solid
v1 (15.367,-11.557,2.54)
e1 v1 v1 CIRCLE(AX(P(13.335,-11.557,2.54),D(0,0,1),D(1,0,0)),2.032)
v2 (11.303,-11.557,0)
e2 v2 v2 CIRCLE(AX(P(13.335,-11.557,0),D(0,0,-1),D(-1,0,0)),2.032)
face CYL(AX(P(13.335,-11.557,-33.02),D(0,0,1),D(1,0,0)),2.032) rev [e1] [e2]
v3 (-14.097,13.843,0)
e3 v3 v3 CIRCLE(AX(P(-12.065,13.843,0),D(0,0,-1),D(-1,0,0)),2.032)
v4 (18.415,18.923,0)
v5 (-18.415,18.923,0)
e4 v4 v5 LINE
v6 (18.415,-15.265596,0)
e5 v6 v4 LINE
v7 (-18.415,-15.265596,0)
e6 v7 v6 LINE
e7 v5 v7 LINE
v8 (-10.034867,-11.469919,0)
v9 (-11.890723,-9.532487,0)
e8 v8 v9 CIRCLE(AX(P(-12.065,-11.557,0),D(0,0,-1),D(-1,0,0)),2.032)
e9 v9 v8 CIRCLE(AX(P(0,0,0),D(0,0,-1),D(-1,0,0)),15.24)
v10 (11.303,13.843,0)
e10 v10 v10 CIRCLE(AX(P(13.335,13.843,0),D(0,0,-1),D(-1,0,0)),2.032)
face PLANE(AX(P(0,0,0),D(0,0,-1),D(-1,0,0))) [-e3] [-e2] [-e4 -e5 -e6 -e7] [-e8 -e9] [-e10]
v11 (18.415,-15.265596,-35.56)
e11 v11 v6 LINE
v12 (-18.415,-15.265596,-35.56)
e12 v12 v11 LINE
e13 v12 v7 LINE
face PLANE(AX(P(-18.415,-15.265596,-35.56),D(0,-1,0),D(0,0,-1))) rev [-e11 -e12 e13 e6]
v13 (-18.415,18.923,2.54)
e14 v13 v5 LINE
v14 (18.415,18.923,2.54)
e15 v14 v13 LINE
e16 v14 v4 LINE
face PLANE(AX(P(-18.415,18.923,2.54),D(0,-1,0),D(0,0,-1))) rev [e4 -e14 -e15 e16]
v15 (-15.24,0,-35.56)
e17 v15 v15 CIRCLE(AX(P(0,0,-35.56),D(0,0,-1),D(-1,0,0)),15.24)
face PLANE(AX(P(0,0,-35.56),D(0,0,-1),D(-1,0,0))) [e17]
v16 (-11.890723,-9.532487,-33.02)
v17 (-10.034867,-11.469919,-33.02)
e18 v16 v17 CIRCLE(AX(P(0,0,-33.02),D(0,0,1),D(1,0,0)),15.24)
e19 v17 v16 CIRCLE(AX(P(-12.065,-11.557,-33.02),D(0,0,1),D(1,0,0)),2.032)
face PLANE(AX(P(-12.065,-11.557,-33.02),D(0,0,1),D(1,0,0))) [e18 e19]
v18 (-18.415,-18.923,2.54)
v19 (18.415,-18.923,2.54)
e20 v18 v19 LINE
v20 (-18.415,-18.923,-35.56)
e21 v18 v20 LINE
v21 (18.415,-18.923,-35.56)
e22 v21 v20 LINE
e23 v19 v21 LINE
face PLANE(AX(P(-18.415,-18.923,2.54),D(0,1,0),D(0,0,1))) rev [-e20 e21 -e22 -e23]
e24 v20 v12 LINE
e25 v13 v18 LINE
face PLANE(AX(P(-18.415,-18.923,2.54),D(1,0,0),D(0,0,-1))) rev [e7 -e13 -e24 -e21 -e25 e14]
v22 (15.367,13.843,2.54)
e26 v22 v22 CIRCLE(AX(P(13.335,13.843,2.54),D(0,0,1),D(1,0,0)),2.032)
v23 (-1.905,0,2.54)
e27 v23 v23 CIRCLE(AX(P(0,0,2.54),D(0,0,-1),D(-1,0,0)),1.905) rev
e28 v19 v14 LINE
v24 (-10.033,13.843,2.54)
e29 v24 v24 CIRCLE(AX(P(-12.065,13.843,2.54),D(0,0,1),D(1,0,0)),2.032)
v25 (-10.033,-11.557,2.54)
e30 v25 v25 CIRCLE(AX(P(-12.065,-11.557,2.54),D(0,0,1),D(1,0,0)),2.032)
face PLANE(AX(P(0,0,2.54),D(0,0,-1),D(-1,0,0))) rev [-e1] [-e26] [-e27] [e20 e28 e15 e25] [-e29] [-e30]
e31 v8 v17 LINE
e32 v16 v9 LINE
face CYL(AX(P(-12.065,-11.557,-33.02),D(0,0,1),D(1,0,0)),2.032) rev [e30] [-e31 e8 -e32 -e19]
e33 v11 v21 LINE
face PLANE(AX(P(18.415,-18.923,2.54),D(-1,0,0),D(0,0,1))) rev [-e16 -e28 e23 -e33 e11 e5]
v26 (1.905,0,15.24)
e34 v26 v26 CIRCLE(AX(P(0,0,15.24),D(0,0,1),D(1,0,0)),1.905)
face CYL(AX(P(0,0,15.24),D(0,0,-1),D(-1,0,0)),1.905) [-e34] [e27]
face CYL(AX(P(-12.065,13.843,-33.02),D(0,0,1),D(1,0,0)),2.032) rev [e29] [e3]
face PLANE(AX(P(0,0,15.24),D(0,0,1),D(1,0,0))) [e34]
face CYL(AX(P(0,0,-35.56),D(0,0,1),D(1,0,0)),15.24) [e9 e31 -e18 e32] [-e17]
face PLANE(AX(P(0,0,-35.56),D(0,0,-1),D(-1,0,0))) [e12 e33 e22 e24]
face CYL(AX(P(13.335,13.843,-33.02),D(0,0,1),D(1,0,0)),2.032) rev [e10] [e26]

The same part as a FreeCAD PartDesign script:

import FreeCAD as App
import Part
import Sketcher
Q = App.Units.Quantity

doc = App.newDocument("Part")
body = doc.addObject("PartDesign::Body", "Body")

# Sketch on XY plane
sketch1 = doc.addObject("Sketcher::SketchObject", "Sketch")
body.addObject(sketch1)
sketch1.AttachmentSupport = (doc.XY_Plane, [""])
sketch1.MapMode = "FlatFace"
sketch1.addGeometry([
    Part.LineSegment(App.Vector(-18, 19, 0), App.Vector(-18, -19, 0)),
    Part.LineSegment(App.Vector(-18, -19, 0), App.Vector(18, -19, 0)),
    Part.LineSegment(App.Vector(18, -19, 0), App.Vector(18, 19, 0)),
    Part.LineSegment(App.Vector(18, 19, 0), App.Vector(-18, 19, 0)),
], False)
sketch1.addConstraint([
    Sketcher.Constraint("Coincident", 0, 2, 1, 1),
    Sketcher.Constraint("Coincident", 1, 2, 2, 1),
    Sketcher.Constraint("Coincident", 2, 2, 3, 1),
    Sketcher.Constraint("Coincident", 3, 2, 0, 1),
    Sketcher.Constraint("Vertical", 0),
    Sketcher.Constraint("Horizontal", 1),
    Sketcher.Constraint("Vertical", 2),
    Sketcher.Constraint("Horizontal", 3),
    Sketcher.Constraint("Symmetric", 0, 2, 2, 2, -1, 1),
    Sketcher.Constraint("DistanceX", 1, 1, 1, 2, Q("1.45 in")),
    Sketcher.Constraint("DistanceY", 0, 2, 0, 1, Q("1.49 in")),
])
pad1 = doc.addObject("PartDesign::Pad", "Pad")
body.addObject(pad1)
pad1.Profile = sketch1
pad1.Length = Q("0.1 in")

# Sketch on XY plane
sketch2 = doc.addObject("Sketcher::SketchObject", "Sketch001")
body.addObject(sketch2)
sketch2.AttachmentSupport = (doc.XY_Plane, [""])
sketch2.MapMode = "FlatFace"
sketch2.AttachmentOffset = App.Placement(App.Vector(0, 0, 0.1 * 25.4), App.Rotation())
sketch2.addGeometry(Part.Circle(App.Vector(0, 0, 0), App.Vector(0, 0, 1), 1.9), False)
sketch2.addConstraint([
    Sketcher.Constraint("Coincident", 0, 3, -1, 1),
    Sketcher.Constraint("Diameter", 0, Q("0.15 in")),
])
pad2 = doc.addObject("PartDesign::Pad", "Pad001")
body.addObject(pad2)
pad2.Profile = sketch2
pad2.Length = Q("0.5 in")

# Sketch on XY plane
sketch3 = doc.addObject("Sketcher::SketchObject", "Sketch002")
body.addObject(sketch3)
sketch3.AttachmentSupport = (doc.XY_Plane, [""])
sketch3.MapMode = "FlatFace"
sketch3.addGeometry(Part.Circle(App.Vector(0, 0, 0), App.Vector(0, 0, 1), 15), False)
sketch3.addConstraint([
    Sketcher.Constraint("Coincident", 0, 3, -1, 1),
    Sketcher.Constraint("Diameter", 0, Q("1.2 in")),
])
pad3 = doc.addObject("PartDesign::Pad", "Pad002")
body.addObject(pad3)
pad3.Profile = sketch3
pad3.Length = Q("1.4 in")
pad3.Reversed = True

# Sketch on XY plane
sketch4 = doc.addObject("Sketcher::SketchObject", "Sketch003")
body.addObject(sketch4)
sketch4.AttachmentSupport = (doc.XY_Plane, [""])
sketch4.MapMode = "FlatFace"
sketch4.addGeometry([
    Part.LineSegment(App.Vector(18.4, -15.3, 0), App.Vector(18.4, -18.9, 0)),
    Part.LineSegment(App.Vector(18.4, -18.9, 0), App.Vector(-18.4, -18.9, 0)),
    Part.LineSegment(App.Vector(-18.4, -18.9, 0), App.Vector(-18.4, -15.3, 0)),
    Part.LineSegment(App.Vector(-18.4, -15.3, 0), App.Vector(18.4, -15.3, 0)),
], False)
sketch4.addConstraint([
    Sketcher.Constraint("Coincident", 0, 2, 1, 1),
    Sketcher.Constraint("Coincident", 1, 2, 2, 1),
    Sketcher.Constraint("Coincident", 2, 2, 3, 1),
    Sketcher.Constraint("Coincident", 3, 2, 0, 1),
    Sketcher.Constraint("Vertical", 0),
    Sketcher.Constraint("Horizontal", 1),
    Sketcher.Constraint("Vertical", 2),
    Sketcher.Constraint("Horizontal", 3),
    Sketcher.Constraint("DistanceX", 1, 2, 1, 1, Q("1.45 in")),
    Sketcher.Constraint("DistanceX", -1, 1, 0, 2, Q("0.725 in")),
    Sketcher.Constraint("DistanceY", 0, 2, -1, 1, Q("0.745 in")),
    Sketcher.Constraint("DistanceY", 0, 2, 0, 1, Q("3.657404 mm")),
])
pad4 = doc.addObject("PartDesign::Pad", "Pad003")
body.addObject(pad4)
pad4.Profile = sketch4
pad4.Length = Q("1.4 in")
pad4.Reversed = True

# Sketch on XY plane
sketch5 = doc.addObject("Sketcher::SketchObject", "Sketch004")
body.addObject(sketch5)
sketch5.AttachmentSupport = (doc.XY_Plane, [""])
sketch5.MapMode = "FlatFace"
sketch5.AttachmentOffset = App.Placement(App.Vector(0, 0, 0.1 * 25.4), App.Rotation())
sketch5.addGeometry([
    Part.Circle(App.Vector(13.3, 13.8, 0), App.Vector(0, 0, 1), 2),
    Part.Circle(App.Vector(-12.1, 13.8, 0), App.Vector(0, 0, 1), 2),
    Part.Circle(App.Vector(-12.1, -11.6, 0), App.Vector(0, 0, 1), 2),
    Part.Circle(App.Vector(13.3, -11.6, 0), App.Vector(0, 0, 1), 2),
], False)
sketch5.addConstraint([
    Sketcher.Constraint("Equal", 0, 1),
    Sketcher.Constraint("Equal", 1, 2),
    Sketcher.Constraint("Equal", 2, 3),
    Sketcher.Constraint("Horizontal", 0, 3, 1, 3),
    Sketcher.Constraint("Horizontal", 2, 3, 3, 3),
    Sketcher.Constraint("Vertical", 1, 3, 2, 3),
    Sketcher.Constraint("Vertical", 0, 3, 3, 3),
    Sketcher.Constraint("Diameter", 0, Q("0.16 in")),
    Sketcher.Constraint("DistanceX", 1, 3, 0, 3, Q("1 in")),
    Sketcher.Constraint("DistanceY", 2, 3, 1, 3, Q("1 in")),
    Sketcher.Constraint("DistanceX", -1, 1, 0, 3, Q("0.525 in")),
    Sketcher.Constraint("DistanceY", -1, 1, 0, 3, Q("0.545 in")),
])
pocket1 = doc.addObject("PartDesign::Pocket", "Pocket")
body.addObject(pocket1)
pocket1.Profile = sketch5
pocket1.Length = Q("1.4 in")

doc.recompute()
